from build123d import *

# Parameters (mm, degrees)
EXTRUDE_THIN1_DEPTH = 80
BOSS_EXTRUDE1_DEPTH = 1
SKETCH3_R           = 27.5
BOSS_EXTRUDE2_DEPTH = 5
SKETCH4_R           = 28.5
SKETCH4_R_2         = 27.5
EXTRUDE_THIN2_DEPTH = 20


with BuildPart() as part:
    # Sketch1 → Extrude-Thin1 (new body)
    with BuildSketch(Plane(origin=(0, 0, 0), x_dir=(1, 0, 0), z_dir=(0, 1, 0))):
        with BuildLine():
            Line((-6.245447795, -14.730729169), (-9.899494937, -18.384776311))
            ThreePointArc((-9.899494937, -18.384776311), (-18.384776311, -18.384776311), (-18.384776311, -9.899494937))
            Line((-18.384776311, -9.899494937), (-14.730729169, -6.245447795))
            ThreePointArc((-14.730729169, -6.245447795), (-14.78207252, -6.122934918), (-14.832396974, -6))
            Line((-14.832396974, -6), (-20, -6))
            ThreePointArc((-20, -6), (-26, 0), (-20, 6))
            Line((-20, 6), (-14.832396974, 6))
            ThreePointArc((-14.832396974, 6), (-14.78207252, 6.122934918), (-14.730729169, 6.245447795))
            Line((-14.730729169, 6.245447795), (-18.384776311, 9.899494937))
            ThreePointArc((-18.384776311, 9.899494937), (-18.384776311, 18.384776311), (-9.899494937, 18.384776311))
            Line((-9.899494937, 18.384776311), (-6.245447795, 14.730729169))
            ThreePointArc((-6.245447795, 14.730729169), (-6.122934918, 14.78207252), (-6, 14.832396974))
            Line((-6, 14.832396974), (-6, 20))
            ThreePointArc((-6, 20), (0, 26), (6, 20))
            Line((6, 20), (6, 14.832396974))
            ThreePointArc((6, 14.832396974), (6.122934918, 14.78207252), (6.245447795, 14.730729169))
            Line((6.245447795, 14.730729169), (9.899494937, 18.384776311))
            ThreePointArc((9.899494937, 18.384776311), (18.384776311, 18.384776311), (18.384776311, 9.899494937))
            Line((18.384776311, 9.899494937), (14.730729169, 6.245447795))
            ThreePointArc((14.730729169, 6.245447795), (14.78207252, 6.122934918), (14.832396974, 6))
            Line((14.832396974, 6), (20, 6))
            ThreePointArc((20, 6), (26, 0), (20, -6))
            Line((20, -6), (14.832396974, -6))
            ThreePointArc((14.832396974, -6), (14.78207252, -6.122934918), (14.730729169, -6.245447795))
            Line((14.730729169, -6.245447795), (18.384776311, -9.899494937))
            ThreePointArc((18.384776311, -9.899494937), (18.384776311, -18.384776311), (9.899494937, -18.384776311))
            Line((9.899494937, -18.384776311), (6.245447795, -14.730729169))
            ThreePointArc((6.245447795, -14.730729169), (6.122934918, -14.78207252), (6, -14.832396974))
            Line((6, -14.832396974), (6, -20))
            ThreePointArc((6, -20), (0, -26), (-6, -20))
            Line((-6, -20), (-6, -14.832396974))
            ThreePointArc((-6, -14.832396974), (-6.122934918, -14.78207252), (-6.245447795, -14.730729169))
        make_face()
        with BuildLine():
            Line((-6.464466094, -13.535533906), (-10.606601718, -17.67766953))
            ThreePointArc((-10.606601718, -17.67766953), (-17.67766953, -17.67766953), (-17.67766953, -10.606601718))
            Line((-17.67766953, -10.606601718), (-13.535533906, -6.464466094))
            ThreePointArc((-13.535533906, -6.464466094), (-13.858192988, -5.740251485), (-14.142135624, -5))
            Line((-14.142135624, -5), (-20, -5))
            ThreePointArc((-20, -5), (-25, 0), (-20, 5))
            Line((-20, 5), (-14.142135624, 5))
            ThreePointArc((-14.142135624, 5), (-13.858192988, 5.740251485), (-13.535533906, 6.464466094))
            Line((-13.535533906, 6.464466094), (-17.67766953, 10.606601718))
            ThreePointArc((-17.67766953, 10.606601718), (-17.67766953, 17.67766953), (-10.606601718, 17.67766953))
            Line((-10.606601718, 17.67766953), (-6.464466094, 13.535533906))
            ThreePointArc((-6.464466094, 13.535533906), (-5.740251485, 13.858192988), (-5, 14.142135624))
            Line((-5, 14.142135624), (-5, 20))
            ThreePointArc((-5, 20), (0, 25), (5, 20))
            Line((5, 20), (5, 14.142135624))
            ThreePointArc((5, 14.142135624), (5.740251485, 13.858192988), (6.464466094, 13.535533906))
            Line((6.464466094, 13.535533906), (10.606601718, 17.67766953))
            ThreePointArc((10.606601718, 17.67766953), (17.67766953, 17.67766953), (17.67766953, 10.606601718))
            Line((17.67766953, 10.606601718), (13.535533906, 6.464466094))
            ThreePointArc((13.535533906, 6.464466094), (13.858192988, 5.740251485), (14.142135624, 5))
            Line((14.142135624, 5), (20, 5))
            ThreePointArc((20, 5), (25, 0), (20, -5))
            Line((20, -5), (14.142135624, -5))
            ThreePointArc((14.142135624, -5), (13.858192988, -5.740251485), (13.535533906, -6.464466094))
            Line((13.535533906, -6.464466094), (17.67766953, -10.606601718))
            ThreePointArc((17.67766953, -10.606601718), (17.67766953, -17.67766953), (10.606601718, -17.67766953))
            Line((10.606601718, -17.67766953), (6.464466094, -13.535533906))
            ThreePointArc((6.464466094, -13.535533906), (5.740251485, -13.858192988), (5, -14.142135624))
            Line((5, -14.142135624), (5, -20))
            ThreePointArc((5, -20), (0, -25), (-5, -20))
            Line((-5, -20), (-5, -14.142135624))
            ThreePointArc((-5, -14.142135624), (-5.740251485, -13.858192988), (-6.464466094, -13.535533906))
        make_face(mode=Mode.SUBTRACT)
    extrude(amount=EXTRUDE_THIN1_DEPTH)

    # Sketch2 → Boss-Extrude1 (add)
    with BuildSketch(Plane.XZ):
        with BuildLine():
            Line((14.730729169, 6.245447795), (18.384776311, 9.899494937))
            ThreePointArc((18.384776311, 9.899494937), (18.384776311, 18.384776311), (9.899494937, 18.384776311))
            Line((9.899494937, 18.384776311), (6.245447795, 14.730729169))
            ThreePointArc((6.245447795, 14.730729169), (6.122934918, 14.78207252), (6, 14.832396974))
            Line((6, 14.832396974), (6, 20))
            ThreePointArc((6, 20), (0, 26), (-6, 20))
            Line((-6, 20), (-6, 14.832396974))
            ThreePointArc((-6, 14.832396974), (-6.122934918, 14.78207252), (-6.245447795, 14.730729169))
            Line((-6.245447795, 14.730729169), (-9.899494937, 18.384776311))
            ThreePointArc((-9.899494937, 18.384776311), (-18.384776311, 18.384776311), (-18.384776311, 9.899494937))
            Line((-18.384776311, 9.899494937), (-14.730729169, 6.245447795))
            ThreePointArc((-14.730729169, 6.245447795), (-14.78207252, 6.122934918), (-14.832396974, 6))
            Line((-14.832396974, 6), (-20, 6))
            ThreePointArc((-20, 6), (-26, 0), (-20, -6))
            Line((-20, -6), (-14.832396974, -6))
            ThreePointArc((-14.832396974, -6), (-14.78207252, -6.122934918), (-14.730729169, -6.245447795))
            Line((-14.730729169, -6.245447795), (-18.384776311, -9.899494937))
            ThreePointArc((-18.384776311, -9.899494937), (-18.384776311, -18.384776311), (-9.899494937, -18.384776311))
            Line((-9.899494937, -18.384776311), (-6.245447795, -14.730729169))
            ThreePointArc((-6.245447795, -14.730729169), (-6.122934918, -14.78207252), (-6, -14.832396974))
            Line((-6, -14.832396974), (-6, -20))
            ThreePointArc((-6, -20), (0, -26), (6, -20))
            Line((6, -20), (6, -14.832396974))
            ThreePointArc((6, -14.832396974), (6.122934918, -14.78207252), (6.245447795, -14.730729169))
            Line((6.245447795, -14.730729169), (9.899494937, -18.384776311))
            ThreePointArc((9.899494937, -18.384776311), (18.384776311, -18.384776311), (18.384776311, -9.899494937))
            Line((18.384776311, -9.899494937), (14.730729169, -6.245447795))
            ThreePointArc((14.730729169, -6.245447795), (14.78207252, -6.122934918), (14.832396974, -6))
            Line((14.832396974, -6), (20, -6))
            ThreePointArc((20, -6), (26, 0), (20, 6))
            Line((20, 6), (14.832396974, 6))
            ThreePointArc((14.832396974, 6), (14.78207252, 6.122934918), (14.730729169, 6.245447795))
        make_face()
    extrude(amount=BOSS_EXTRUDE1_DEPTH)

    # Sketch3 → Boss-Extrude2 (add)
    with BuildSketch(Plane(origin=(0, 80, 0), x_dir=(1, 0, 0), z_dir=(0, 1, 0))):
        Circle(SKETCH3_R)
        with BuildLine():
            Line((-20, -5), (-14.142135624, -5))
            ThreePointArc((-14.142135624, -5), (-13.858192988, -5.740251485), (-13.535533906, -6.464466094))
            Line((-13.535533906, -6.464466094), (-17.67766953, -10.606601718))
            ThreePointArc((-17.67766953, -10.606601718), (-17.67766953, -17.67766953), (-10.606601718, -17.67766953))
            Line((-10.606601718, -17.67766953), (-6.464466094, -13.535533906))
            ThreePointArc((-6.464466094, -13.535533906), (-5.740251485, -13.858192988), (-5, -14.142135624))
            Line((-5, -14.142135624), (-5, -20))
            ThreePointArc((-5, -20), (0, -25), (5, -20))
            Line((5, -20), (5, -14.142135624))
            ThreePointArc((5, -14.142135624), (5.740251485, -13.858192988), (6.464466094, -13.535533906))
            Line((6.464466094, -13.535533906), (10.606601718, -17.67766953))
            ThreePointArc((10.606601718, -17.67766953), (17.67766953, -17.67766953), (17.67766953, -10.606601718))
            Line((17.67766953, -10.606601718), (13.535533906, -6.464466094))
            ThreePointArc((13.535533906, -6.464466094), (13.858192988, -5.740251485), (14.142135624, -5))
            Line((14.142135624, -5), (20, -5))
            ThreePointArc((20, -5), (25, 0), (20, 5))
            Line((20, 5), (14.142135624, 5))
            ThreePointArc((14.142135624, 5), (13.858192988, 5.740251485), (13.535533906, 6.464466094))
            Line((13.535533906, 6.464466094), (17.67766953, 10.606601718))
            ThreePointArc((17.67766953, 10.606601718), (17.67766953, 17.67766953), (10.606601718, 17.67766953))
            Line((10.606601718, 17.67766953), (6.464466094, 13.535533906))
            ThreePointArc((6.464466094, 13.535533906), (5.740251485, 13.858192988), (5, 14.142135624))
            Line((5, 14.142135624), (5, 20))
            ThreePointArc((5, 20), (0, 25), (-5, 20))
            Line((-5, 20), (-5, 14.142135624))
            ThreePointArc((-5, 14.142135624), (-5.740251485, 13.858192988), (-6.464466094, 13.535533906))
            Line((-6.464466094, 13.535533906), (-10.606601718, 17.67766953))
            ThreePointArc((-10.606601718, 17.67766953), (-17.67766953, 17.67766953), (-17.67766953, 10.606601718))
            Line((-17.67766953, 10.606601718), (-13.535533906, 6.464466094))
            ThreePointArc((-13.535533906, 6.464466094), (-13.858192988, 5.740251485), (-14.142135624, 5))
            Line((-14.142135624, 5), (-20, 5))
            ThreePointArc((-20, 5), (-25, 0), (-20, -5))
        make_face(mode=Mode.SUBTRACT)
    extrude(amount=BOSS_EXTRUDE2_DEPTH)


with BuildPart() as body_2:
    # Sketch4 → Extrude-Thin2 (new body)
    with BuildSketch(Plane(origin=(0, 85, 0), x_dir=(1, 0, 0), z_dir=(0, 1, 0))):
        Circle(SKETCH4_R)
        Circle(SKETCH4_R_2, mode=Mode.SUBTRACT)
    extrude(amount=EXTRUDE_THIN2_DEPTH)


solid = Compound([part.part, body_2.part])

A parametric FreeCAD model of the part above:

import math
import FreeCAD as App
import Part
import Sketcher

V = App.Vector
Q = App.Units.Quantity

doc = App.newDocument("Part")
body = doc.addObject("PartDesign::Body", "Body")

sketch1 = doc.addObject("Sketcher::SketchObject", "Sketch")
body.addObject(sketch1)
sketch1.AttachmentSupport = (doc.XZ_Plane, [""])
sketch1.MapMode = "FlatFace"
sketch1.addGeometry([
    Part.LineSegment(V(-9.9, 18.38, 0), V(-6.25, 14.73, 0)),
    Part.ArcOfCircle(Part.Circle(V(0, 0, 0), V(0, 0, 1), 16), math.radians(112.02), math.radians(112.98)),
    Part.LineSegment(V(-6, 14.83, 0), V(-6, 20, 0)),
    Part.ArcOfCircle(Part.Circle(V(0, 20, 0), V(0, 0, 1), 6), math.radians(0), math.radians(180)),
    Part.LineSegment(V(6, 20, 0), V(6, 14.83, 0)),
    Part.ArcOfCircle(Part.Circle(V(0, 0, 0), V(0, 0, 1), 16), math.radians(67.02), math.radians(67.98)),
    Part.LineSegment(V(6.25, 14.73, 0), V(9.9, 18.38, 0)),
    Part.ArcOfCircle(Part.Circle(V(14.14, 14.14, 0), V(0, 0, 1), 6), math.radians(-45), math.radians(135)),
    Part.LineSegment(V(18.38, 9.9, 0), V(14.73, 6.25, 0)),
    Part.ArcOfCircle(Part.Circle(V(0, 0, 0), V(0, 0, 1), 16), math.radians(22.02), math.radians(22.98)),
    Part.LineSegment(V(14.83, 6, 0), V(20, 6, 0)),
    Part.ArcOfCircle(Part.Circle(V(20, 0, 0), V(0, 0, 1), 6), math.radians(-90), math.radians(90)),
    Part.LineSegment(V(20, -6, 0), V(14.83, -6, 0)),
    Part.ArcOfCircle(Part.Circle(V(0, 0, 0), V(0, 0, 1), 16), math.radians(-22.98), math.radians(-22.02)),
    Part.LineSegment(V(14.73, -6.25, 0), V(18.38, -9.9, 0)),
    Part.ArcOfCircle(Part.Circle(V(14.14, -14.14, 0), V(0, 0, 1), 6), math.radians(-135), math.radians(45)),
    Part.LineSegment(V(9.9, -18.38, 0), V(6.25, -14.73, 0)),
    Part.ArcOfCircle(Part.Circle(V(0, 0, 0), V(0, 0, 1), 16), math.radians(-67.98), math.radians(-67.02)),
    Part.LineSegment(V(6, -14.83, 0), V(6, -20, 0)),
    Part.ArcOfCircle(Part.Circle(V(0, -20, 0), V(0, 0, 1), 6), math.radians(180), math.radians(360)),
    Part.LineSegment(V(-6, -20, 0), V(-6, -14.83, 0)),
    Part.ArcOfCircle(Part.Circle(V(0, 0, 0), V(0, 0, 1), 16), math.radians(-112.98), math.radians(-112.02)),
    Part.LineSegment(V(-6.25, -14.73, 0), V(-9.9, -18.38, 0)),
    Part.ArcOfCircle(Part.Circle(V(-14.14, -14.14, 0), V(0, 0, 1), 6), math.radians(135), math.radians(315)),
    Part.LineSegment(V(-18.38, -9.9, 0), V(-14.73, -6.25, 0)),
    Part.ArcOfCircle(Part.Circle(V(0, 0, 0), V(0, 0, 1), 16), math.radians(-157.98), math.radians(-157.02)),
    Part.LineSegment(V(-14.83, -6, 0), V(-20, -6, 0)),
    Part.ArcOfCircle(Part.Circle(V(-20, 0, 0), V(0, 0, 1), 6), math.radians(90), math.radians(270)),
    Part.LineSegment(V(-20, 6, 0), V(-14.83, 6, 0)),
    Part.ArcOfCircle(Part.Circle(V(0, 0, 0), V(0, 0, 1), 16), math.radians(157.02), math.radians(157.98)),
    Part.LineSegment(V(-14.73, 6.25, 0), V(-18.38, 9.9, 0)),
    Part.ArcOfCircle(Part.Circle(V(-14.14, 14.14, 0), V(0, 0, 1), 6), math.radians(45), math.radians(225)),
    Part.LineSegment(V(-6.46, 13.54, 0), V(-10.61, 17.68, 0)),
    Part.ArcOfCircle(Part.Circle(V(-14.14, 14.14, 0), V(0, 0, 1), 5), math.radians(45), math.radians(225)),
    Part.LineSegment(V(-17.68, 10.61, 0), V(-13.54, 6.46, 0)),
    Part.ArcOfCircle(Part.Circle(V(0, 0, 0), V(0, 0, 1), 15), math.radians(154.47), math.radians(160.53)),
    Part.LineSegment(V(-14.14, 5, 0), V(-20, 5, 0)),
    Part.ArcOfCircle(Part.Circle(V(-20, 0, 0), V(0, 0, 1), 5), math.radians(90), math.radians(270)),
    Part.LineSegment(V(-20, -5, 0), V(-14.14, -5, 0)),
    Part.ArcOfCircle(Part.Circle(V(0, 0, 0), V(0, 0, 1), 15), math.radians(-160.53), math.radians(-154.47)),
    Part.LineSegment(V(-13.54, -6.46, 0), V(-17.68, -10.61, 0)),
    Part.ArcOfCircle(Part.Circle(V(-14.14, -14.14, 0), V(0, 0, 1), 5), math.radians(135), math.radians(315)),
    Part.LineSegment(V(-10.61, -17.68, 0), V(-6.46, -13.54, 0)),
    Part.ArcOfCircle(Part.Circle(V(0, 0, 0), V(0, 0, 1), 15), math.radians(-115.53), math.radians(-109.47)),
    Part.LineSegment(V(-5, -14.14, 0), V(-5, -20, 0)),
    Part.ArcOfCircle(Part.Circle(V(0, -20, 0), V(0, 0, 1), 5), math.radians(180), math.radians(360)),
    Part.LineSegment(V(5, -20, 0), V(5, -14.14, 0)),
    Part.ArcOfCircle(Part.Circle(V(0, 0, 0), V(0, 0, 1), 15), math.radians(-70.53), math.radians(-64.47)),
    Part.LineSegment(V(6.46, -13.54, 0), V(10.61, -17.68, 0)),
    Part.ArcOfCircle(Part.Circle(V(14.14, -14.14, 0), V(0, 0, 1), 5), math.radians(-135), math.radians(45)),
    Part.LineSegment(V(17.68, -10.61, 0), V(13.54, -6.46, 0)),
    Part.ArcOfCircle(Part.Circle(V(0, 0, 0), V(0, 0, 1), 15), math.radians(-25.53), math.radians(-19.47)),
    Part.LineSegment(V(14.14, -5, 0), V(20, -5, 0)),
    Part.ArcOfCircle(Part.Circle(V(20, 0, 0), V(0, 0, 1), 5), math.radians(-90), math.radians(90)),
    Part.LineSegment(V(20, 5, 0), V(14.14, 5, 0)),
    Part.ArcOfCircle(Part.Circle(V(0, 0, 0), V(0, 0, 1), 15), math.radians(19.47), math.radians(25.53)),
    Part.LineSegment(V(13.54, 6.46, 0), V(17.68, 10.61, 0)),
    Part.ArcOfCircle(Part.Circle(V(14.14, 14.14, 0), V(0, 0, 1), 5), math.radians(-45), math.radians(135)),
    Part.LineSegment(V(10.61, 17.68, 0), V(6.46, 13.54, 0)),
    Part.ArcOfCircle(Part.Circle(V(0, 0, 0), V(0, 0, 1), 15), math.radians(64.47), math.radians(70.53)),
    Part.LineSegment(V(5, 14.14, 0), V(5, 20, 0)),
    Part.ArcOfCircle(Part.Circle(V(0, 20, 0), V(0, 0, 1), 5), math.radians(0), math.radians(180)),
    Part.LineSegment(V(-5, 20, 0), V(-5, 14.14, 0)),
    Part.ArcOfCircle(Part.Circle(V(0, 0, 0), V(0, 0, 1), 15), math.radians(109.47), math.radians(115.53)),
], False)
sketch1.addConstraint([
    Sketcher.Constraint("Coincident", 0, 2, 1, 2),
    Sketcher.Constraint("Coincident", 1, 1, 2, 1),
    Sketcher.Constraint("Tangent", 2, 2, 3, 2),
    Sketcher.Constraint("Tangent", 3, 1, 4, 1),
    Sketcher.Constraint("Coincident", 4, 2, 5, 2),
    Sketcher.Constraint("Coincident", 5, 1, 6, 1),
    Sketcher.Constraint("Tangent", 6, 2, 7, 2),
    Sketcher.Constraint("Tangent", 7, 1, 8, 1),
    Sketcher.Constraint("Coincident", 8, 2, 9, 2),
    Sketcher.Constraint("Coincident", 9, 1, 10, 1),
    Sketcher.Constraint("Tangent", 10, 2, 11, 2),
    Sketcher.Constraint("Tangent", 11, 1, 12, 1),
    Sketcher.Constraint("Coincident", 12, 2, 13, 2),
    Sketcher.Constraint("Coincident", 13, 1, 14, 1),
    Sketcher.Constraint("Tangent", 14, 2, 15, 2),
    Sketcher.Constraint("Tangent", 15, 1, 16, 1),
    Sketcher.Constraint("Coincident", 16, 2, 17, 2),
    Sketcher.Constraint("Coincident", 17, 1, 18, 1),
    Sketcher.Constraint("Tangent", 18, 2, 19, 2),
    Sketcher.Constraint("Tangent", 19, 1, 20, 1),
    Sketcher.Constraint("Coincident", 20, 2, 21, 2),
    Sketcher.Constraint("Coincident", 21, 1, 22, 1),
    Sketcher.Constraint("Tangent", 22, 2, 23, 2),
    Sketcher.Constraint("Tangent", 23, 1, 24, 1),
    Sketcher.Constraint("Coincident", 24, 2, 25, 2),
    Sketcher.Constraint("Coincident", 25, 1, 26, 1),
    Sketcher.Constraint("Tangent", 26, 2, 27, 2),
    Sketcher.Constraint("Tangent", 27, 1, 28, 1),
    Sketcher.Constraint("Coincident", 28, 2, 29, 2),
    Sketcher.Constraint("Coincident", 29, 1, 30, 1),
    Sketcher.Constraint("Tangent", 30, 2, 31, 2),
    Sketcher.Constraint("Tangent", 31, 1, 0, 1),
    Sketcher.Constraint("Tangent", 32, 2, 33, 1),
    Sketcher.Constraint("Tangent", 33, 2, 34, 1),
    Sketcher.Constraint("Coincident", 34, 2, 35, 1),
    Sketcher.Constraint("Coincident", 35, 2, 36, 1),
    Sketcher.Constraint("Tangent", 36, 2, 37, 1),
    Sketcher.Constraint("Tangent", 37, 2, 38, 1),
    Sketcher.Constraint("Coincident", 38, 2, 39, 1),
    Sketcher.Constraint("Coincident", 39, 2, 40, 1),
    Sketcher.Constraint("Tangent", 40, 2, 41, 1),
    Sketcher.Constraint("Tangent", 41, 2, 42, 1),
    Sketcher.Constraint("Coincident", 42, 2, 43, 1),
    Sketcher.Constraint("Coincident", 43, 2, 44, 1),
    Sketcher.Constraint("Tangent", 44, 2, 45, 1),
    Sketcher.Constraint("Tangent", 45, 2, 46, 1),
    Sketcher.Constraint("Coincident", 46, 2, 47, 1),
    Sketcher.Constraint("Coincident", 47, 2, 48, 1),
    Sketcher.Constraint("Tangent", 48, 2, 49, 1),
    Sketcher.Constraint("Tangent", 49, 2, 50, 1),
    Sketcher.Constraint("Coincident", 50, 2, 51, 1),
    Sketcher.Constraint("Coincident", 51, 2, 52, 1),
    Sketcher.Constraint("Tangent", 52, 2, 53, 1),
    Sketcher.Constraint("Tangent", 53, 2, 54, 1),
    Sketcher.Constraint("Coincident", 54, 2, 55, 1),
    Sketcher.Constraint("Coincident", 55, 2, 56, 1),
    Sketcher.Constraint("Tangent", 56, 2, 57, 1),
    Sketcher.Constraint("Tangent", 57, 2, 58, 1),
    Sketcher.Constraint("Coincident", 58, 2, 59, 1),
    Sketcher.Constraint("Coincident", 59, 2, 60, 1),
    Sketcher.Constraint("Tangent", 60, 2, 61, 1),
    Sketcher.Constraint("Tangent", 61, 2, 62, 1),
    Sketcher.Constraint("Coincident", 62, 2, 63, 1),
    Sketcher.Constraint("Coincident", 63, 2, 32, 1),
    Sketcher.Constraint("Vertical", 2),
    Sketcher.Constraint("Vertical", 4),
    Sketcher.Constraint("Horizontal", 10),
    Sketcher.Constraint("Horizontal", 12),
    Sketcher.Constraint("Vertical", 18),
    Sketcher.Constraint("Vertical", 20),
    Sketcher.Constraint("Horizontal", 26),
    Sketcher.Constraint("Horizontal", 28),
    Sketcher.Constraint("Horizontal", 36),
    Sketcher.Constraint("Horizontal", 38),
    Sketcher.Constraint("Vertical", 44),
    Sketcher.Constraint("Vertical", 46),
    Sketcher.Constraint("Horizontal", 52),
    Sketcher.Constraint("Horizontal", 54),
    Sketcher.Constraint("Vertical", 60),
    Sketcher.Constraint("Vertical", 62),
    Sketcher.Constraint("Coincident", 1, 3, -1, 1),
    Sketcher.Constraint("Coincident", 5, 3, -1, 1),
    Sketcher.Constraint("Coincident", 9, 3, -1, 1),
    Sketcher.Constraint("Coincident", 13, 3, -1, 1),
    Sketcher.Constraint("Coincident", 17, 3, -1, 1),
    Sketcher.Constraint("Coincident", 21, 3, -1, 1),
    Sketcher.Constraint("Coincident", 25, 3, -1, 1),
    Sketcher.Constraint("Coincident", 29, 3, -1, 1),
    Sketcher.Constraint("Coincident", 35, 3, -1, 1),
    Sketcher.Constraint("Coincident", 39, 3, -1, 1),
    Sketcher.Constraint("Coincident", 43, 3, -1, 1),
    Sketcher.Constraint("Coincident", 47, 3, -1, 1),
    Sketcher.Constraint("Coincident", 51, 3, -1, 1),
    Sketcher.Constraint("Coincident", 55, 3, -1, 1),
    Sketcher.Constraint("Coincident", 59, 3, -1, 1),
    Sketcher.Constraint("Coincident", 63, 3, -1, 1),
    Sketcher.Constraint("Coincident", 33, 3, 31, 3),
    Sketcher.Constraint("Coincident", 37, 3, 27, 3),
    Sketcher.Constraint("Coincident", 41, 3, 23, 3),
    Sketcher.Constraint("Coincident", 45, 3, 19, 3),
    Sketcher.Constraint("Coincident", 49, 3, 15, 3),
    Sketcher.Constraint("Coincident", 53, 3, 11, 3),
    Sketcher.Constraint("Coincident", 57, 3, 7, 3),
    Sketcher.Constraint("Coincident", 61, 3, 3, 3),
    Sketcher.Constraint("Equal", 1, 5),
    Sketcher.Constraint("Equal", 3, 7),
    Sketcher.Constraint("Equal", 5, 9),
    Sketcher.Constraint("Equal", 7, 11),
    Sketcher.Constraint("Equal", 9, 13),
    Sketcher.Constraint("Equal", 11, 15),
    Sketcher.Constraint("Equal", 13, 17),
    Sketcher.Constraint("Equal", 15, 19),
    Sketcher.Constraint("Equal", 17, 21),
    Sketcher.Constraint("Equal", 19, 23),
    Sketcher.Constraint("Equal", 21, 25),
    Sketcher.Constraint("Equal", 23, 27),
    Sketcher.Constraint("Equal", 25, 29),
    Sketcher.Constraint("Equal", 27, 31),
    Sketcher.Constraint("Equal", 33, 37),
    Sketcher.Constraint("Equal", 35, 39),
    Sketcher.Constraint("Equal", 37, 41),
    Sketcher.Constraint("Equal", 39, 43),
    Sketcher.Constraint("Equal", 41, 45),
    Sketcher.Constraint("Equal", 43, 47),
    Sketcher.Constraint("Equal", 45, 49),
    Sketcher.Constraint("Equal", 47, 51),
    Sketcher.Constraint("Equal", 49, 53),
    Sketcher.Constraint("Equal", 51, 55),
    Sketcher.Constraint("Equal", 53, 57),
    Sketcher.Constraint("Equal", 55, 59),
    Sketcher.Constraint("Equal", 57, 61),
    Sketcher.Constraint("Equal", 59, 63),
    Sketcher.Constraint("Symmetric", 3, 3, 19, 3, -1, 1),
    Sketcher.Constraint("Symmetric", 7, 3, 23, 3, -1, 1),
    Sketcher.Constraint("Symmetric", 11, 3, 27, 3, -1, 1),
    Sketcher.Constraint("Symmetric", 15, 3, 31, 3, -1, 1),
    Sketcher.Constraint("Symmetric", 15, 3, 23, 3, -2),
    Sketcher.Constraint("PointOnObject", 3, 3, -2),
    Sketcher.Constraint("PointOnObject", 11, 3, -1),
    Sketcher.Constraint("Perpendicular", 0, 6),
    Sketcher.Constraint("Parallel", 6, 8),
    Sketcher.Constraint("Perpendicular", 8, 14),
    Sketcher.Constraint("Parallel", 14, 16),
    Sketcher.Constraint("Perpendicular", 16, 22),
    Sketcher.Constraint("Parallel", 22, 24),
    Sketcher.Constraint("Perpendicular", 24, 30),
    Sketcher.Constraint("Parallel", 30, 32),
    Sketcher.Constraint("Parallel", 32, 34),
    Sketcher.Constraint("Perpendicular", 34, 40),
    Sketcher.Constraint("Parallel", 40, 42),
    Sketcher.Constraint("Perpendicular", 42, 48),
    Sketcher.Constraint("Parallel", 48, 50),
    Sketcher.Constraint("Perpendicular", 50, 56),
    Sketcher.Constraint("Parallel", 56, 58),
    Sketcher.Constraint("Horizontal", 0, 2, 5, 1),
    Sketcher.Constraint("Horizontal", 49, 3, 43, 2),
    Sketcher.Constraint("Vertical", 41, 3, 35, 2),
    Sketcher.Constraint("Equal", 28, 2),
    Sketcher.Constraint("Radius", 3, Q("6 mm")),
    Sketcher.Constraint("Radius", 33, Q("5 mm")),
    Sketcher.Constraint("Radius", 35, Q("15 mm")),
    Sketcher.Constraint("DistanceY", -1, 1, 3, 3, Q("20 mm")),
    Sketcher.Constraint("Radius", 1, Q("16.000005 mm")),
])
pad1 = doc.addObject("PartDesign::Pad", "Pad")
body.addObject(pad1)
pad1.Profile = sketch1
pad1.Length = 80
pad1.Reversed = True

sketch2 = doc.addObject("Sketcher::SketchObject", "Sketch001")
body.addObject(sketch2)
sketch2.AttachmentSupport = (doc.XZ_Plane, [""])
sketch2.MapMode = "FlatFace"
sketch2.addGeometry([
    Part.LineSegment(V(14.73, 6.25, 0), V(18.38, 9.9, 0)),
    Part.ArcOfCircle(Part.Circle(V(14.14, 14.14, 0), V(0, 0, 1), 6), math.radians(-45), math.radians(135)),
    Part.LineSegment(V(9.9, 18.38, 0), V(6.25, 14.73, 0)),
    Part.ArcOfCircle(Part.Circle(V(0, 0, 0), V(0, 0, 1), 16), math.radians(67.02), math.radians(67.98)),
    Part.LineSegment(V(6, 14.83, 0), V(6, 20, 0)),
    Part.ArcOfCircle(Part.Circle(V(0, 20, 0), V(0, 0, 1), 6), math.radians(0), math.radians(180)),
    Part.LineSegment(V(-6, 20, 0), V(-6, 14.83, 0)),
    Part.ArcOfCircle(Part.Circle(V(0, 0, 0), V(0, 0, 1), 16), math.radians(112.02), math.radians(112.98)),
    Part.LineSegment(V(-6.25, 14.73, 0), V(-9.9, 18.38, 0)),
    Part.ArcOfCircle(Part.Circle(V(-14.14, 14.14, 0), V(0, 0, 1), 6), math.radians(45), math.radians(225)),
    Part.LineSegment(V(-18.38, 9.9, 0), V(-14.73, 6.25, 0)),
    Part.ArcOfCircle(Part.Circle(V(0, 0, 0), V(0, 0, 1), 16), math.radians(157.02), math.radians(157.98)),
    Part.LineSegment(V(-14.83, 6, 0), V(-20, 6, 0)),
    Part.ArcOfCircle(Part.Circle(V(-20, 0, 0), V(0, 0, 1), 6), math.radians(90), math.radians(270)),
    Part.LineSegment(V(-20, -6, 0), V(-14.83, -6, 0)),
    Part.ArcOfCircle(Part.Circle(V(0, 0, 0), V(0, 0, 1), 16), math.radians(-157.98), math.radians(-157.02)),
    Part.LineSegment(V(-14.73, -6.25, 0), V(-18.38, -9.9, 0)),
    Part.ArcOfCircle(Part.Circle(V(-14.14, -14.14, 0), V(0, 0, 1), 6), math.radians(135), math.radians(315)),
    Part.LineSegment(V(-9.9, -18.38, 0), V(-6.25, -14.73, 0)),
    Part.ArcOfCircle(Part.Circle(V(0, 0, 0), V(0, 0, 1), 16), math.radians(-112.98), math.radians(-112.02)),
    Part.LineSegment(V(-6, -14.83, 0), V(-6, -20, 0)),
    Part.ArcOfCircle(Part.Circle(V(0, -20, 0), V(0, 0, 1), 6), math.radians(180), math.radians(360)),
    Part.LineSegment(V(6, -20, 0), V(6, -14.83, 0)),
    Part.ArcOfCircle(Part.Circle(V(0, 0, 0), V(0, 0, 1), 16), math.radians(-67.98), math.radians(-67.02)),
    Part.LineSegment(V(6.25, -14.73, 0), V(9.9, -18.38, 0)),
    Part.ArcOfCircle(Part.Circle(V(14.14, -14.14, 0), V(0, 0, 1), 6), math.radians(-135), math.radians(45)),
    Part.LineSegment(V(18.38, -9.9, 0), V(14.73, -6.25, 0)),
    Part.ArcOfCircle(Part.Circle(V(0, 0, 0), V(0, 0, 1), 16), math.radians(-22.98), math.radians(-22.02)),
    Part.LineSegment(V(14.83, -6, 0), V(20, -6, 0)),
    Part.ArcOfCircle(Part.Circle(V(20, 0, 0), V(0, 0, 1), 6), math.radians(-90), math.radians(90)),
    Part.LineSegment(V(20, 6, 0), V(14.83, 6, 0)),
    Part.ArcOfCircle(Part.Circle(V(0, 0, 0), V(0, 0, 1), 16), math.radians(22.02), math.radians(22.98)),
], False)
sketch2.addConstraint([
    Sketcher.Constraint("Tangent", 0, 2, 1, 1),
    Sketcher.Constraint("Tangent", 1, 2, 2, 1),
    Sketcher.Constraint("Coincident", 2, 2, 3, 1),
    Sketcher.Constraint("Coincident", 3, 2, 4, 1),
    Sketcher.Constraint("Tangent", 4, 2, 5, 1),
    Sketcher.Constraint("Tangent", 5, 2, 6, 1),
    Sketcher.Constraint("Coincident", 6, 2, 7, 1),
    Sketcher.Constraint("Coincident", 7, 2, 8, 1),
    Sketcher.Constraint("Tangent", 8, 2, 9, 1),
    Sketcher.Constraint("Tangent", 9, 2, 10, 1),
    Sketcher.Constraint("Coincident", 10, 2, 11, 1),
    Sketcher.Constraint("Coincident", 11, 2, 12, 1),
    Sketcher.Constraint("Tangent", 12, 2, 13, 1),
    Sketcher.Constraint("Tangent", 13, 2, 14, 1),
    Sketcher.Constraint("Coincident", 14, 2, 15, 1),
    Sketcher.Constraint("Coincident", 15, 2, 16, 1),
    Sketcher.Constraint("Tangent", 16, 2, 17, 1),
    Sketcher.Constraint("Tangent", 17, 2, 18, 1),
    Sketcher.Constraint("Coincident", 18, 2, 19, 1),
    Sketcher.Constraint("Coincident", 19, 2, 20, 1),
    Sketcher.Constraint("Tangent", 20, 2, 21, 1),
    Sketcher.Constraint("Tangent", 21, 2, 22, 1),
    Sketcher.Constraint("Coincident", 22, 2, 23, 1),
    Sketcher.Constraint("Coincident", 23, 2, 24, 1),
    Sketcher.Constraint("Tangent", 24, 2, 25, 1),
    Sketcher.Constraint("Tangent", 25, 2, 26, 1),
    Sketcher.Constraint("Coincident", 26, 2, 27, 1),
    Sketcher.Constraint("Coincident", 27, 2, 28, 1),
    Sketcher.Constraint("Tangent", 28, 2, 29, 1),
    Sketcher.Constraint("Tangent", 29, 2, 30, 1),
    Sketcher.Constraint("Coincident", 30, 2, 31, 1),
    Sketcher.Constraint("Coincident", 31, 2, 0, 1),
    Sketcher.Constraint("Vertical", 4),
    Sketcher.Constraint("Vertical", 6),
    Sketcher.Constraint("Horizontal", 12),
    Sketcher.Constraint("Horizontal", 14),
    Sketcher.Constraint("Vertical", 20),
    Sketcher.Constraint("Vertical", 22),
    Sketcher.Constraint("Horizontal", 28),
    Sketcher.Constraint("Horizontal", 30),
    Sketcher.Constraint("Coincident", 3, 3, -1, 1),
    Sketcher.Constraint("Coincident", 7, 3, -1, 1),
    Sketcher.Constraint("Coincident", 11, 3, -1, 1),
    Sketcher.Constraint("Coincident", 15, 3, -1, 1),
    Sketcher.Constraint("Coincident", 19, 3, -1, 1),
    Sketcher.Constraint("Coincident", 23, 3, -1, 1),
    Sketcher.Constraint("Coincident", 27, 3, -1, 1),
    Sketcher.Constraint("Coincident", 31, 3, -1, 1),
    Sketcher.Constraint("Equal", 1, 5),
    Sketcher.Constraint("Equal", 3, 7),
    Sketcher.Constraint("Equal", 5, 9),
    Sketcher.Constraint("Equal", 7, 11),
    Sketcher.Constraint("Equal", 9, 13),
    Sketcher.Constraint("Equal", 11, 15),
    Sketcher.Constraint("Equal", 13, 17),
    Sketcher.Constraint("Equal", 15, 19),
    Sketcher.Constraint("Equal", 17, 21),
    Sketcher.Constraint("Equal", 19, 23),
    Sketcher.Constraint("Equal", 21, 25),
    Sketcher.Constraint("Equal", 23, 27),
    Sketcher.Constraint("Equal", 25, 29),
    Sketcher.Constraint("Equal", 27, 31),
    Sketcher.Constraint("Symmetric", 1, 3, 17, 3, -1, 1),
    Sketcher.Constraint("Symmetric", 5, 3, 21, 3, -1, 1),
    Sketcher.Constraint("Symmetric", 9, 3, 25, 3, -1, 1),
    Sketcher.Constraint("Symmetric", 13, 3, 29, 3, -1, 1),
    Sketcher.Constraint("Symmetric", 1, 3, 9, 3, -2),
    Sketcher.Constraint("PointOnObject", 5, 3, -2),
    Sketcher.Constraint("PointOnObject", 13, 3, -1),
    Sketcher.Constraint("Parallel", 0, 2),
    Sketcher.Constraint("Perpendicular", 2, 8),
    Sketcher.Constraint("Parallel", 8, 10),
    Sketcher.Constraint("Perpendicular", 10, 16),
    Sketcher.Constraint("Parallel", 16, 18),
    Sketcher.Constraint("Perpendicular", 18, 24),
    Sketcher.Constraint("Parallel", 24, 26),
    Sketcher.Constraint("Horizontal", 2, 2, 7, 2),
    Sketcher.Constraint("Equal", 30, 4),
    Sketcher.Constraint("Equal", 0, 2),
    Sketcher.Constraint("Radius", 1, Q("6 mm")),
    Sketcher.Constraint("DistanceY", -1, 1, 5, 3, Q("20 mm")),
    Sketcher.Constraint("Radius", 3, Q("16.000005 mm")),
    Sketcher.Constraint("DistanceY", 3, 3, 1, 3, Q("14.142141 mm")),
])
pad2 = doc.addObject("PartDesign::Pad", "Pad001")
body.addObject(pad2)
pad2.Profile = sketch2
pad2.Length = 1

sketch3 = doc.addObject("Sketcher::SketchObject", "Sketch002")
body.addObject(sketch3)
sketch3.AttachmentSupport = (doc.XZ_Plane, [""])
sketch3.MapMode = "FlatFace"
sketch3.AttachmentOffset = App.Placement(V(0, 0, -80), App.Rotation())
sketch3.addGeometry([
    Part.Circle(V(0, 0, 0), V(0, 0, 1), 27.5),
    Part.LineSegment(V(-14.1, 5, 0), V(-20, 5, 0)),
    Part.ArcOfCircle(Part.Circle(V(-20, 0, 0), V(0, 0, 1), 5), math.radians(90), math.radians(270)),
    Part.LineSegment(V(-20, -5, 0), V(-14.1, -5, 0)),
    Part.ArcOfCircle(Part.Circle(V(0, 0, 0), V(0, 0, 1), 15), math.radians(-160.53), math.radians(-154.47)),
    Part.LineSegment(V(-13.5, -6.5, 0), V(-17.7, -10.6, 0)),
    Part.ArcOfCircle(Part.Circle(V(-14.1, -14.1, 0), V(0, 0, 1), 5), math.radians(135), math.radians(315)),
    Part.LineSegment(V(-10.6, -17.7, 0), V(-6.5, -13.5, 0)),
    Part.ArcOfCircle(Part.Circle(V(0, 0, 0), V(0, 0, 1), 15), math.radians(-115.53), math.radians(-109.47)),
    Part.LineSegment(V(-5, -14.1, 0), V(-5, -20, 0)),
    Part.ArcOfCircle(Part.Circle(V(0, -20, 0), V(0, 0, 1), 5), math.radians(180), math.radians(360)),
    Part.LineSegment(V(5, -20, 0), V(5, -14.1, 0)),
    Part.ArcOfCircle(Part.Circle(V(0, 0, 0), V(0, 0, 1), 15), math.radians(-70.53), math.radians(-64.47)),
    Part.LineSegment(V(6.5, -13.5, 0), V(10.6, -17.7, 0)),
    Part.ArcOfCircle(Part.Circle(V(14.1, -14.1, 0), V(0, 0, 1), 5), math.radians(-135), math.radians(45)),
    Part.LineSegment(V(17.7, -10.6, 0), V(13.5, -6.5, 0)),
    Part.ArcOfCircle(Part.Circle(V(0, 0, 0), V(0, 0, 1), 15), math.radians(-25.53), math.radians(-19.47)),
    Part.LineSegment(V(14.1, -5, 0), V(20, -5, 0)),
    Part.ArcOfCircle(Part.Circle(V(20, 0, 0), V(0, 0, 1), 5), math.radians(-90), math.radians(90)),
    Part.LineSegment(V(20, 5, 0), V(14.1, 5, 0)),
    Part.ArcOfCircle(Part.Circle(V(0, 0, 0), V(0, 0, 1), 15), math.radians(19.47), math.radians(25.53)),
    Part.LineSegment(V(13.5, 6.5, 0), V(17.7, 10.6, 0)),
    Part.ArcOfCircle(Part.Circle(V(14.1, 14.1, 0), V(0, 0, 1), 5), math.radians(-45), math.radians(135)),
    Part.LineSegment(V(10.6, 17.7, 0), V(6.5, 13.5, 0)),
    Part.ArcOfCircle(Part.Circle(V(0, 0, 0), V(0, 0, 1), 15), math.radians(64.47), math.radians(70.53)),
    Part.LineSegment(V(5, 14.1, 0), V(5, 20, 0)),
    Part.ArcOfCircle(Part.Circle(V(0, 20, 0), V(0, 0, 1), 5), math.radians(0), math.radians(180)),
    Part.LineSegment(V(-5, 20, 0), V(-5, 14.1, 0)),
    Part.ArcOfCircle(Part.Circle(V(0, 0, 0), V(0, 0, 1), 15), math.radians(109.47), math.radians(115.53)),
    Part.LineSegment(V(-6.5, 13.5, 0), V(-10.6, 17.7, 0)),
    Part.ArcOfCircle(Part.Circle(V(-14.1, 14.1, 0), V(0, 0, 1), 5), math.radians(45), math.radians(225)),
    Part.LineSegment(V(-17.7, 10.6, 0), V(-13.5, 6.5, 0)),
    Part.ArcOfCircle(Part.Circle(V(0, 0, 0), V(0, 0, 1), 15), math.radians(154.47), math.radians(160.53)),
], False)
sketch3.addConstraint([
    Sketcher.Constraint("Tangent", 1, 2, 2, 1),
    Sketcher.Constraint("Tangent", 2, 2, 3, 1),
    Sketcher.Constraint("Coincident", 3, 2, 4, 1),
    Sketcher.Constraint("Coincident", 4, 2, 5, 1),
    Sketcher.Constraint("Tangent", 5, 2, 6, 1),
    Sketcher.Constraint("Tangent", 6, 2, 7, 1),
    Sketcher.Constraint("Coincident", 7, 2, 8, 1),
    Sketcher.Constraint("Coincident", 8, 2, 9, 1),
    Sketcher.Constraint("Tangent", 9, 2, 10, 1),
    Sketcher.Constraint("Tangent", 10, 2, 11, 1),
    Sketcher.Constraint("Coincident", 11, 2, 12, 1),
    Sketcher.Constraint("Coincident", 12, 2, 13, 1),
    Sketcher.Constraint("Tangent", 13, 2, 14, 1),
    Sketcher.Constraint("Tangent", 14, 2, 15, 1),
    Sketcher.Constraint("Coincident", 15, 2, 16, 1),
    Sketcher.Constraint("Coincident", 16, 2, 17, 1),
    Sketcher.Constraint("Tangent", 17, 2, 18, 1),
    Sketcher.Constraint("Tangent", 18, 2, 19, 1),
    Sketcher.Constraint("Coincident", 19, 2, 20, 1),
    Sketcher.Constraint("Coincident", 20, 2, 21, 1),
    Sketcher.Constraint("Tangent", 21, 2, 22, 1),
    Sketcher.Constraint("Tangent", 22, 2, 23, 1),
    Sketcher.Constraint("Coincident", 23, 2, 24, 1),
    Sketcher.Constraint("Coincident", 24, 2, 25, 1),
    Sketcher.Constraint("Tangent", 25, 2, 26, 1),
    Sketcher.Constraint("Tangent", 26, 2, 27, 1),
    Sketcher.Constraint("Coincident", 27, 2, 28, 1),
    Sketcher.Constraint("Coincident", 28, 2, 29, 1),
    Sketcher.Constraint("Tangent", 29, 2, 30, 1),
    Sketcher.Constraint("Tangent", 30, 2, 31, 1),
    Sketcher.Constraint("Coincident", 31, 2, 32, 1),
    Sketcher.Constraint("Coincident", 32, 2, 1, 1),
    Sketcher.Constraint("Horizontal", 1),
    Sketcher.Constraint("Horizontal", 3),
    Sketcher.Constraint("Vertical", 9),
    Sketcher.Constraint("Vertical", 11),
    Sketcher.Constraint("Horizontal", 17),
    Sketcher.Constraint("Horizontal", 19),
    Sketcher.Constraint("Vertical", 25),
    Sketcher.Constraint("Vertical", 27),
    Sketcher.Constraint("Coincident", 0, 3, -1, 1),
    Sketcher.Constraint("Coincident", 4, 3, -1, 1),
    Sketcher.Constraint("Coincident", 8, 3, -1, 1),
    Sketcher.Constraint("Coincident", 12, 3, -1, 1),
    Sketcher.Constraint("Coincident", 16, 3, -1, 1),
    Sketcher.Constraint("Coincident", 20, 3, -1, 1),
    Sketcher.Constraint("Coincident", 24, 3, -1, 1),
    Sketcher.Constraint("Coincident", 28, 3, -1, 1),
    Sketcher.Constraint("Coincident", 32, 3, -1, 1),
    Sketcher.Constraint("Equal", 2, 6),
    Sketcher.Constraint("Equal", 4, 8),
    Sketcher.Constraint("Equal", 6, 10),
    Sketcher.Constraint("Equal", 8, 12),
    Sketcher.Constraint("Equal", 10, 14),
    Sketcher.Constraint("Equal", 12, 16),
    Sketcher.Constraint("Equal", 14, 18),
    Sketcher.Constraint("Equal", 16, 20),
    Sketcher.Constraint("Equal", 18, 22),
    Sketcher.Constraint("Equal", 20, 24),
    Sketcher.Constraint("Equal", 22, 26),
    Sketcher.Constraint("Equal", 24, 28),
    Sketcher.Constraint("Equal", 26, 30),
    Sketcher.Constraint("Equal", 28, 32),
    Sketcher.Constraint("Symmetric", 2, 3, 18, 3, -1, 1),
    Sketcher.Constraint("Symmetric", 6, 3, 22, 3, -1, 1),
    Sketcher.Constraint("Symmetric", 10, 3, 26, 3, -1, 1),
    Sketcher.Constraint("Symmetric", 14, 3, 30, 3, -1, 1),
    Sketcher.Constraint("Symmetric", 6, 3, 14, 3, -2),
    Sketcher.Constraint("PointOnObject", 2, 3, -1),
    Sketcher.Constraint("PointOnObject", 10, 3, -2),
    Sketcher.Constraint("Parallel", 5, 7),
    Sketcher.Constraint("Perpendicular", 7, 13),
    Sketcher.Constraint("Parallel", 13, 15),
    Sketcher.Constraint("Perpendicular", 15, 21),
    Sketcher.Constraint("Parallel", 21, 23),
    Sketcher.Constraint("Perpendicular", 23, 29),
    Sketcher.Constraint("Parallel", 29, 31),
    Sketcher.Constraint("Horizontal", 14, 3, 8, 2),
    Sketcher.Constraint("Horizontal", 7, 2, 12, 2),
    Sketcher.Constraint("Vertical", 30, 3, 3, 2),
    Sketcher.Constraint("Equal", 19, 9),
    Sketcher.Constraint("Diameter", 0, Q("55 mm")),
    Sketcher.Constraint("Radius", 2, Q("5 mm")),
    Sketcher.Constraint("Radius", 4, Q("15 mm")),
    Sketcher.Constraint("DistanceX", 2, 3, -1, 1, Q("20 mm")),
])
pad3 = doc.addObject("PartDesign::Pad", "Pad002")
body.addObject(pad3)
pad3.Profile = sketch3
pad3.Length = 5
pad3.Reversed = True
body2 = doc.addObject("PartDesign::Body", "Body001")

sketch4 = doc.addObject("Sketcher::SketchObject", "Sketch003")
body2.addObject(sketch4)
sketch4.AttachmentSupport = (doc.getObject("XZ_Plane001"), [""])
sketch4.MapMode = "FlatFace"
sketch4.AttachmentOffset = App.Placement(V(0, 0, -85), App.Rotation())
sketch4.addGeometry([
    Part.Circle(V(0, 0, 0), V(0, 0, 1), 28),
    Part.Circle(V(0, 0, 0), V(0, 0, 1), 28),
], False)
sketch4.addConstraint([
    Sketcher.Constraint("Coincident", 0, 3, -1, 1),
    Sketcher.Constraint("Coincident", 1, 3, -1, 1),
    Sketcher.Constraint("Diameter", 0, Q("57 mm")),
    Sketcher.Constraint("Diameter", 1, Q("55 mm")),
])
pad4 = doc.addObject("PartDesign::Pad", "Pad003")
body2.addObject(pad4)
pad4.Profile = sketch4
pad4.Length = 20
pad4.Reversed = True

doc.recompute()
